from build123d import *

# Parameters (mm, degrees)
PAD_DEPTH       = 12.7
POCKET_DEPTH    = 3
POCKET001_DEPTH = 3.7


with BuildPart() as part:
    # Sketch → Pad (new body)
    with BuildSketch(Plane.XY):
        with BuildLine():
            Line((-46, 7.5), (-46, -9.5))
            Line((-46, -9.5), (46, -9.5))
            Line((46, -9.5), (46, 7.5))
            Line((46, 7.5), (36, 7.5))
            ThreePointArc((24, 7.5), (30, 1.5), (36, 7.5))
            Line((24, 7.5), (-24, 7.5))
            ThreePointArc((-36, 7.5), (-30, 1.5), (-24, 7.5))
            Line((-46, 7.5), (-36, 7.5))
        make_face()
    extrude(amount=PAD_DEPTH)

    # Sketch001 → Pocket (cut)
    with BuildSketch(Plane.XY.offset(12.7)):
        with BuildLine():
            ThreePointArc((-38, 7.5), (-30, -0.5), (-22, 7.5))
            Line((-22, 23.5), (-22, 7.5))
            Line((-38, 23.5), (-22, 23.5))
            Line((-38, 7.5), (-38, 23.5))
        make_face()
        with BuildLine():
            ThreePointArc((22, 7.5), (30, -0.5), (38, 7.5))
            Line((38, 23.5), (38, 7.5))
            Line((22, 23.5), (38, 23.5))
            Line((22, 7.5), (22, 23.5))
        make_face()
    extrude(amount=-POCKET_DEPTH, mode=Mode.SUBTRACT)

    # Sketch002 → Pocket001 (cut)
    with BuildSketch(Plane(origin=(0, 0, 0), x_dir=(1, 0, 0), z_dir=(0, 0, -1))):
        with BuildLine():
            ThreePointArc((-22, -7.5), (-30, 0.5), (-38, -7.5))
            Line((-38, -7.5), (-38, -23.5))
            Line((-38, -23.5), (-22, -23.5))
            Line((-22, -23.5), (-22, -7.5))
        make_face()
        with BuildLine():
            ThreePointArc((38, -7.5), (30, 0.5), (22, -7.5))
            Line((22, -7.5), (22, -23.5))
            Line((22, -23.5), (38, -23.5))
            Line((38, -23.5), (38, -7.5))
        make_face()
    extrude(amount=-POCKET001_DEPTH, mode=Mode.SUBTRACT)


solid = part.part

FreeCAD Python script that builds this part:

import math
import FreeCAD as App
import Part
import Sketcher
Q = App.Units.Quantity

doc = App.newDocument("Part")
body = doc.addObject("PartDesign::Body", "Body")

# Sketch on XY plane
sketch1 = body.newObject("Sketcher::SketchObject", "Sketch")
sketch1.AttachmentSupport = (doc.getObject("XY_Plane"), [""])
sketch1.MapMode = "FlatFace"
sketch1.addGeometry([
    Part.LineSegment(App.Vector(-46, 8, 0), App.Vector(-46, -10, 0)),  # 0
    Part.LineSegment(App.Vector(-46, -10, 0), App.Vector(46, -10, 0)),  # 1
    Part.LineSegment(App.Vector(46, -10, 0), App.Vector(46, 8, 0)),  # 2
    Part.LineSegment(App.Vector(46, 8, 0), App.Vector(36, 8, 0)),  # 3
    Part.ArcOfCircle(Part.Circle(App.Vector(30, 8, 0), App.Vector(0, 0, 1), 6), math.radians(180), math.radians(360)),  # 4
    Part.LineSegment(App.Vector(24, 8, 0), App.Vector(-24, 8, 0)),  # 5
    Part.ArcOfCircle(Part.Circle(App.Vector(-30, 8, 0), App.Vector(0, 0, 1), 6), math.radians(180), math.radians(360)),  # 6
    Part.LineSegment(App.Vector(-36, 8, 0), App.Vector(-46, 8, 0)),  # 7
], False)
sketch1.addConstraint([
    Sketcher.Constraint("Coincident", 0, 2, 1, 1),
    Sketcher.Constraint("Coincident", 1, 2, 2, 1),
    Sketcher.Constraint("Coincident", 2, 2, 3, 1),
    Sketcher.Constraint("Coincident", 3, 2, 4, 2),
    Sketcher.Constraint("Coincident", 4, 1, 5, 1),
    Sketcher.Constraint("Coincident", 5, 2, 6, 2),
    Sketcher.Constraint("Coincident", 6, 1, 7, 1),
    Sketcher.Constraint("Coincident", 7, 2, 0, 1),
    Sketcher.Constraint("Vertical", 0),
    Sketcher.Constraint("Horizontal", 1),
    Sketcher.Constraint("Vertical", 2),
    Sketcher.Constraint("Horizontal", 3),
    Sketcher.Constraint("Horizontal", 5),
    Sketcher.Constraint("Horizontal", 7),
    Sketcher.Constraint("Equal", 4, 6),
    Sketcher.Constraint("Symmetric", 4, 3, 6, 3, -2),
    Sketcher.Constraint("Symmetric", 2, 2, 7, 2, -2),
    Sketcher.Constraint("Horizontal", 6, 3, 2, 2),
    Sketcher.Constraint("Horizontal", 3, 2, 4, 1),
    Sketcher.Constraint("Radius", 4, Q("6 mm")),
    Sketcher.Constraint("DistanceX", 1, 1, 1, 2, Q("92 mm")),
    Sketcher.Constraint("DistanceX", 3, 2, 3, 1, Q("10 mm")),
    Sketcher.Constraint("DistanceY", 0, 2, 0, 1, Q("17 mm")),
    Sketcher.Constraint("DistanceY", -1, 1, 4, 3, Q("7.5 mm")),
])
pad1 = body.newObject("PartDesign::Pad", "Pad")
pad1.Profile = sketch1
pad1.Length = 12.7

# Sketch on XY plane
sketch2 = body.newObject("Sketcher::SketchObject", "Sketch001")
sketch2.AttachmentSupport = (doc.getObject("XY_Plane"), [""])
sketch2.MapMode = "FlatFace"
sketch2.AttachmentOffset = App.Placement(App.Vector(0, 0, 12.7), App.Rotation())
sketch2.addGeometry([
    Part.ArcOfCircle(Part.Circle(App.Vector(-30, 8, 0), App.Vector(0, 0, 1), 8), math.radians(180), math.radians(360)),  # 0
    Part.LineSegment(App.Vector(-22, 8, 0), App.Vector(-22, 24, 0)),  # 1
    Part.LineSegment(App.Vector(-22, 24, 0), App.Vector(-38, 24, 0)),  # 2
    Part.LineSegment(App.Vector(-38, 24, 0), App.Vector(-38, 8, 0)),  # 3
    Part.ArcOfCircle(Part.Circle(App.Vector(30, 8, 0), App.Vector(0, 0, 1), 8), math.radians(180), math.radians(360)),  # 4
    Part.LineSegment(App.Vector(38, 8, 0), App.Vector(38, 24, 0)),  # 5
    Part.LineSegment(App.Vector(38, 24, 0), App.Vector(22, 24, 0)),  # 6
    Part.LineSegment(App.Vector(22, 24, 0), App.Vector(22, 8, 0)),  # 7
], False)
sketch2.addConstraint([
    Sketcher.Constraint("Tangent", 0, 2, 1, 1),
    Sketcher.Constraint("Coincident", 1, 2, 2, 1),
    Sketcher.Constraint("Coincident", 2, 2, 3, 1),
    Sketcher.Constraint("Tangent", 3, 2, 0, 1),
    Sketcher.Constraint("Tangent", 4, 2, 5, 1),
    Sketcher.Constraint("Coincident", 5, 2, 6, 1),
    Sketcher.Constraint("Coincident", 6, 2, 7, 1),
    Sketcher.Constraint("Tangent", 7, 2, 4, 1),
    Sketcher.Constraint("Vertical", 1),
    Sketcher.Constraint("Horizontal", 2),
    Sketcher.Constraint("Vertical", 3),
    Sketcher.Constraint("Vertical", 5),
    Sketcher.Constraint("Horizontal", 6),
    Sketcher.Constraint("Vertical", 7),
    Sketcher.Constraint("Equal", 0, 4),
    Sketcher.Constraint("Symmetric", 0, 3, 4, 3, -2),
    Sketcher.Constraint("Horizontal", 2, 2, 5, 2),
    Sketcher.Constraint("Equal", 6, 1),
    Sketcher.Constraint("Radius", 0, Q("8 mm")),
    Sketcher.Constraint("DistanceX", 0, 3, -1, 1, Q("30 mm")),
    Sketcher.Constraint("DistanceY", -1, 1, 0, 3, Q("7.5 mm")),
])
pocket1 = body.newObject("PartDesign::Pocket", "Pocket")
pocket1.Profile = sketch2
pocket1.Length = 3

# Sketch on XY plane
sketch3 = body.newObject("Sketcher::SketchObject", "Sketch002")
sketch3.AttachmentSupport = (doc.getObject("XY_Plane"), [""])
sketch3.MapMode = "FlatFace"
sketch3.addGeometry([
    Part.ArcOfCircle(Part.Circle(App.Vector(-30, 8, 0), App.Vector(0, 0, 1), 8), math.radians(180), math.radians(360)),  # 0
    Part.LineSegment(App.Vector(-38, 8, 0), App.Vector(-38, 24, 0)),  # 1
    Part.LineSegment(App.Vector(-38, 24, 0), App.Vector(-22, 24, 0)),  # 2
    Part.LineSegment(App.Vector(-22, 24, 0), App.Vector(-22, 8, 0)),  # 3
    Part.ArcOfCircle(Part.Circle(App.Vector(30, 8, 0), App.Vector(0, 0, 1), 8), math.radians(180), math.radians(360)),  # 4
    Part.LineSegment(App.Vector(22, 8, 0), App.Vector(22, 24, 0)),  # 5
    Part.LineSegment(App.Vector(22, 24, 0), App.Vector(38, 24, 0)),  # 6
    Part.LineSegment(App.Vector(38, 24, 0), App.Vector(38, 8, 0)),  # 7
], False)
sketch3.addConstraint([
    Sketcher.Constraint("Tangent", 0, 1, 1, 1),
    Sketcher.Constraint("Coincident", 1, 2, 2, 1),
    Sketcher.Constraint("Coincident", 2, 2, 3, 1),
    Sketcher.Constraint("Tangent", 3, 2, 0, 2),
    Sketcher.Constraint("Tangent", 4, 1, 5, 1),
    Sketcher.Constraint("Coincident", 5, 2, 6, 1),
    Sketcher.Constraint("Coincident", 6, 2, 7, 1),
    Sketcher.Constraint("Tangent", 7, 2, 4, 2),
    Sketcher.Constraint("Vertical", 1),
    Sketcher.Constraint("Horizontal", 2),
    Sketcher.Constraint("Vertical", 3),
    Sketcher.Constraint("Vertical", 5),
    Sketcher.Constraint("Horizontal", 6),
    Sketcher.Constraint("Vertical", 7),
    Sketcher.Constraint("Equal", 0, 4),
    Sketcher.Constraint("Symmetric", 0, 3, 4, 3, -2),
    Sketcher.Constraint("Horizontal", 2, 2, 5, 2),
    Sketcher.Constraint("Equal", 6, 1),
    Sketcher.Constraint("Radius", 0, Q("8 mm")),
    Sketcher.Constraint("DistanceX", 0, 3, -1, 1, Q("30 mm")),
    Sketcher.Constraint("DistanceY", -1, 1, 0, 3, Q("7.5 mm")),
])
pocket2 = body.newObject("PartDesign::Pocket", "Pocket001")
pocket2.Profile = sketch3
pocket2.Length = 3.7
pocket2.Reversed = True

doc.recompute()
